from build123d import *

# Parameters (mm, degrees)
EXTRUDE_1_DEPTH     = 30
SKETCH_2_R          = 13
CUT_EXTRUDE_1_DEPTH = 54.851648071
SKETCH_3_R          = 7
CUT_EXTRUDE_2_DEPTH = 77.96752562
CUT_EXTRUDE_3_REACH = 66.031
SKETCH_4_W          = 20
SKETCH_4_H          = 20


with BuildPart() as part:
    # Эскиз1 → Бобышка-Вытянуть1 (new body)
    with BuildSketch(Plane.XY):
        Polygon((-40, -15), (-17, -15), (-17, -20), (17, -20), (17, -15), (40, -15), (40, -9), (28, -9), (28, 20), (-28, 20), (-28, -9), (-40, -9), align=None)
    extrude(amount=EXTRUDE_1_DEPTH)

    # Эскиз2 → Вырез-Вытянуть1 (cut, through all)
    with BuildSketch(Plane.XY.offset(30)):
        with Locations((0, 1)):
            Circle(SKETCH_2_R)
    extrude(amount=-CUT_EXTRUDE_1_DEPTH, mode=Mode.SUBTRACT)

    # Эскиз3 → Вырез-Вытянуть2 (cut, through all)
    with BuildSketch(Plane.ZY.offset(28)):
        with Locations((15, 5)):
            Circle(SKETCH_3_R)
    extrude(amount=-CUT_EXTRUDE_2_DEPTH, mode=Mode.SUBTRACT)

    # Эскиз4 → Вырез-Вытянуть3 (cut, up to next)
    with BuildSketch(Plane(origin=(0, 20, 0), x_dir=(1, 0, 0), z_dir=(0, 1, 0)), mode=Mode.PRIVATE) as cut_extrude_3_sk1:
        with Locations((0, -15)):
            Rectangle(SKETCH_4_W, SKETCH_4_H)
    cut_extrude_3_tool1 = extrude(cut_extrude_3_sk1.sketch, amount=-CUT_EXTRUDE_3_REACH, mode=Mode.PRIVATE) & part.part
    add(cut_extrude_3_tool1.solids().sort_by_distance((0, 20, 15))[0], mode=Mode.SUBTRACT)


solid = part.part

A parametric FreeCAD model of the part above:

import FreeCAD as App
import Part
import Sketcher
from FreeCAD import Vector
Q = App.Units.Quantity

doc = App.newDocument("Part")
body = doc.addObject("PartDesign::Body", "Body")

sketch1 = body.newObject("Sketcher::SketchObject", "Sketch")
sketch1.AttachmentSupport = (doc.getObject("XY_Plane"), [""])
sketch1.MapMode = "FlatFace"
sketch1.addGeometry([
    Part.LineSegment(Vector(-40, -15, 0), Vector(-17, -15, 0)),
    Part.LineSegment(Vector(-17, -15, 0), Vector(-17, -20, 0)),
    Part.LineSegment(Vector(-17, -20, 0), Vector(17, -20, 0)),
    Part.LineSegment(Vector(17, -20, 0), Vector(17, -15, 0)),
    Part.LineSegment(Vector(17, -15, 0), Vector(40, -15, 0)),
    Part.LineSegment(Vector(40, -15, 0), Vector(40, -9, 0)),
    Part.LineSegment(Vector(40, -9, 0), Vector(28, -9, 0)),
    Part.LineSegment(Vector(28, -9, 0), Vector(28, 20, 0)),
    Part.LineSegment(Vector(28, 20, 0), Vector(-28, 20, 0)),
    Part.LineSegment(Vector(-28, 20, 0), Vector(-28, -9, 0)),
    Part.LineSegment(Vector(-28, -9, 0), Vector(-40, -9, 0)),
    Part.LineSegment(Vector(-40, -9, 0), Vector(-40, -15, 0)),
], False)
sketch1.addConstraint([
    Sketcher.Constraint("Coincident", 0, 2, 1, 1),
    Sketcher.Constraint("Coincident", 1, 2, 2, 1),
    Sketcher.Constraint("Coincident", 2, 2, 3, 1),
    Sketcher.Constraint("Coincident", 3, 2, 4, 1),
    Sketcher.Constraint("Coincident", 4, 2, 5, 1),
    Sketcher.Constraint("Coincident", 5, 2, 6, 1),
    Sketcher.Constraint("Coincident", 6, 2, 7, 1),
    Sketcher.Constraint("Coincident", 7, 2, 8, 1),
    Sketcher.Constraint("Coincident", 8, 2, 9, 1),
    Sketcher.Constraint("Coincident", 9, 2, 10, 1),
    Sketcher.Constraint("Coincident", 10, 2, 11, 1),
    Sketcher.Constraint("Coincident", 11, 2, 0, 1),
    Sketcher.Constraint("Horizontal", 0),
    Sketcher.Constraint("Vertical", 1),
    Sketcher.Constraint("Horizontal", 2),
    Sketcher.Constraint("Vertical", 3),
    Sketcher.Constraint("Horizontal", 4),
    Sketcher.Constraint("Vertical", 5),
    Sketcher.Constraint("Horizontal", 6),
    Sketcher.Constraint("Vertical", 7),
    Sketcher.Constraint("Horizontal", 8),
    Sketcher.Constraint("Vertical", 9),
    Sketcher.Constraint("Horizontal", 10),
    Sketcher.Constraint("Vertical", 11),
    Sketcher.Constraint("Symmetric", 0, 2, 3, 2, -2),
    Sketcher.Constraint("Symmetric", 6, 2, 9, 2, -2),
    Sketcher.Constraint("Equal", 0, 4),
    Sketcher.Constraint("DistanceX", 0, 1, 0, 2, Q("23 mm")),
    Sketcher.Constraint("DistanceX", 2, 1, 2, 2, Q("34 mm")),
    Sketcher.Constraint("DistanceX", 6, 2, 6, 1, Q("12 mm")),
    Sketcher.Constraint("DistanceY", 1, 2, 1, 1, Q("5 mm")),
    Sketcher.Constraint("DistanceY", 5, 1, 5, 2, Q("6 mm")),
    Sketcher.Constraint("DistanceY", 7, 1, 7, 2, Q("29 mm")),
    Sketcher.Constraint("DistanceY", 0, 2, -1, 1, Q("15 mm")),
])
pad1 = body.newObject("PartDesign::Pad", "Pad")
pad1.Profile = sketch1
pad1.Length = 30

sketch2 = body.newObject("Sketcher::SketchObject", "Sketch001")
sketch2.AttachmentSupport = (doc.getObject("XY_Plane"), [""])
sketch2.MapMode = "FlatFace"
sketch2.AttachmentOffset = App.Placement(Vector(0, 0, 30), App.Rotation())
sketch2.addGeometry(Part.Circle(Vector(0, 1, 0), Vector(0, 0, 1), 13), False)
sketch2.addConstraint([
    Sketcher.Constraint("PointOnObject", 0, 3, -2),
    Sketcher.Constraint("Diameter", 0, Q("26 mm")),
    Sketcher.Constraint("DistanceY", -1, 1, 0, 3, Q("1 mm")),
])
pocket1 = body.newObject("PartDesign::Pocket", "Pocket")
pocket1.Profile = sketch2
pocket1.Type = "ThroughAll"

sketch3 = body.newObject("Sketcher::SketchObject", "Sketch002")
sketch3.AttachmentSupport = (doc.getObject("YZ_Plane"), [""])
sketch3.MapMode = "FlatFace"
sketch3.AttachmentOffset = App.Placement(Vector(0, 0, -28), App.Rotation())
sketch3.addGeometry(Part.Circle(Vector(5, 15, 0), Vector(0, 0, 1), 7), False)
sketch3.addConstraint([
    Sketcher.Constraint("Diameter", 0, Q("14 mm")),
    Sketcher.Constraint("DistanceX", -1, 1, 0, 3, Q("5 mm")),
    Sketcher.Constraint("DistanceY", -1, 1, 0, 3, Q("15 mm")),
])
pocket2 = body.newObject("PartDesign::Pocket", "Pocket001")
pocket2.Profile = sketch3
pocket2.Type = "ThroughAll"
pocket2.Reversed = True

sketch4 = body.newObject("Sketcher::SketchObject", "Sketch003")
sketch4.AttachmentSupport = (doc.getObject("XZ_Plane"), [""])
sketch4.MapMode = "FlatFace"
sketch4.AttachmentOffset = App.Placement(Vector(0, 0, -20), App.Rotation())
sketch4.addGeometry([
    Part.LineSegment(Vector(-10, 5, 0), Vector(-10, 25, 0)),
    Part.LineSegment(Vector(-10, 25, 0), Vector(10, 25, 0)),
    Part.LineSegment(Vector(10, 25, 0), Vector(10, 5, 0)),
    Part.LineSegment(Vector(10, 5, 0), Vector(-10, 5, 0)),
], False)
sketch4.addConstraint([
    Sketcher.Constraint("Coincident", 0, 2, 1, 1),
    Sketcher.Constraint("Coincident", 1, 2, 2, 1),
    Sketcher.Constraint("Coincident", 2, 2, 3, 1),
    Sketcher.Constraint("Coincident", 3, 2, 0, 1),
    Sketcher.Constraint("Vertical", 0),
    Sketcher.Constraint("Horizontal", 1),
    Sketcher.Constraint("Vertical", 2),
    Sketcher.Constraint("Horizontal", 3),
    Sketcher.Constraint("Equal", 3, 0),
    Sketcher.Constraint("DistanceX", 1, 1, 1, 2, Q("20 mm")),
    Sketcher.Constraint("DistanceX", 0, 2, -1, 1, Q("10 mm")),
    Sketcher.Constraint("DistanceY", -1, 1, 0, 2, Q("25 mm")),
])
pocket3 = body.newObject("PartDesign::Pocket", "Pocket002")
pocket3.Profile = sketch4
pocket3.Type = "UpToFirst"
pocket3.Reversed = True

doc.recompute()
